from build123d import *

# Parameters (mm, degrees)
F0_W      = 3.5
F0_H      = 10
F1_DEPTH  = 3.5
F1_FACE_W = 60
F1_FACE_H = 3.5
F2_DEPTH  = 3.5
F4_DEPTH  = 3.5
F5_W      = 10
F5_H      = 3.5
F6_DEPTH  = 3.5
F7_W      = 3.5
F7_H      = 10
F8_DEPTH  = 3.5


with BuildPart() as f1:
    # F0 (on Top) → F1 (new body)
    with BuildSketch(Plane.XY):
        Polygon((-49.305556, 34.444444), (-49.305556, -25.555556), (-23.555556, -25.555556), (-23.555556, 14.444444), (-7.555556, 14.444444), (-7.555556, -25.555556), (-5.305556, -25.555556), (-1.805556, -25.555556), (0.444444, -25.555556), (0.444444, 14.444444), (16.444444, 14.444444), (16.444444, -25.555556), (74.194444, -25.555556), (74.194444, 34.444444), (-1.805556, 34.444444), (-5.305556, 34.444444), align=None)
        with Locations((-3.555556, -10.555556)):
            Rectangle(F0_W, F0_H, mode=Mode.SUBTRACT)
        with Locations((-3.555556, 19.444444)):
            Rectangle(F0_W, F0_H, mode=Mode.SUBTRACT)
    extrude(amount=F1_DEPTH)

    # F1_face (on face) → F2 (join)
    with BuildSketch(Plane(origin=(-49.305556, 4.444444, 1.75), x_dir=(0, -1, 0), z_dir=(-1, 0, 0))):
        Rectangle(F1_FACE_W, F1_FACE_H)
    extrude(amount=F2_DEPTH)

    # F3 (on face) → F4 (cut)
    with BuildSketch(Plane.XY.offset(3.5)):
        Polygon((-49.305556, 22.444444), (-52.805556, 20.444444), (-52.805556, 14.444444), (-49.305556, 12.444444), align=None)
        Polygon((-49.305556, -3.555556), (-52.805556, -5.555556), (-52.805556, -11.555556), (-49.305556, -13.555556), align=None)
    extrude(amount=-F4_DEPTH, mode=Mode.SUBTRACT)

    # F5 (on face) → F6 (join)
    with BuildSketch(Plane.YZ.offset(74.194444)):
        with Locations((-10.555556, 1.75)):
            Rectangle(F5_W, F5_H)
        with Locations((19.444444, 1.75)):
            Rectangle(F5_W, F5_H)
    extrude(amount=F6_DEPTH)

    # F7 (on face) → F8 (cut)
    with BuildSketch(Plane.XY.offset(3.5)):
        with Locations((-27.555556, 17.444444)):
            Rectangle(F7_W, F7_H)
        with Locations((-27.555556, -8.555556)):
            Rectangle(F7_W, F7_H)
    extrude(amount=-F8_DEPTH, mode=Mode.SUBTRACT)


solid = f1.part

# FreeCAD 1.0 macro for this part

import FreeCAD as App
import Part
import Sketcher
from FreeCAD import Vector

doc = App.newDocument("Part")
body = doc.addObject("PartDesign::Body", "Body")

# Sketch on XY plane
sketch1 = doc.addObject("Sketcher::SketchObject", "Sketch")
body.addObject(sketch1)
sketch1.AttachmentSupport = (doc.XY_Plane, [""])
sketch1.MapMode = "FlatFace"
sketch1.addGeometry([
    Part.LineSegment(Vector(-49.305556, 34.444444, 0), Vector(-49.305556, -25.555556, 0)),  # 0
    Part.LineSegment(Vector(-49.305556, -25.555556, 0), Vector(-23.555556, -25.555556, 0)),  # 1
    Part.LineSegment(Vector(-23.555556, -25.555556, 0), Vector(-23.555556, 14.444444, 0)),  # 2
    Part.LineSegment(Vector(-23.555556, 14.444444, 0), Vector(-7.555556, 14.444444, 0)),  # 3
    Part.LineSegment(Vector(-7.555556, 14.444444, 0), Vector(-7.555556, -25.555556, 0)),  # 4
    Part.LineSegment(Vector(-7.555556, -25.555556, 0), Vector(0.444444, -25.555556, 0)),  # 5
    Part.LineSegment(Vector(0.444444, -25.555556, 0), Vector(0.444444, 14.444444, 0)),  # 6
    Part.LineSegment(Vector(0.444444, 14.444444, 0), Vector(16.444444, 14.444444, 0)),  # 7
    Part.LineSegment(Vector(16.444444, 14.444444, 0), Vector(16.444444, -25.555556, 0)),  # 8
    Part.LineSegment(Vector(16.444444, -25.555556, 0), Vector(74.194444, -25.555556, 0)),  # 9
    Part.LineSegment(Vector(74.194444, -25.555556, 0), Vector(74.194444, 34.444444, 0)),  # 10
    Part.LineSegment(Vector(74.194444, 34.444444, 0), Vector(-49.305556, 34.444444, 0)),  # 11
    Part.LineSegment(Vector(-1.805556, -15.555556, 0), Vector(-5.305556, -15.555556, 0)),  # 12
    Part.LineSegment(Vector(-5.305556, -15.555556, 0), Vector(-5.305556, -5.555556, 0)),  # 13
    Part.LineSegment(Vector(-5.305556, -5.555556, 0), Vector(-1.805556, -5.555556, 0)),  # 14
    Part.LineSegment(Vector(-1.805556, -5.555556, 0), Vector(-1.805556, -15.555556, 0)),  # 15
    Part.LineSegment(Vector(-1.805556, 14.444444, 0), Vector(-5.305556, 14.444444, 0)),  # 16
    Part.LineSegment(Vector(-5.305556, 14.444444, 0), Vector(-5.305556, 24.444444, 0)),  # 17
    Part.LineSegment(Vector(-5.305556, 24.444444, 0), Vector(-1.805556, 24.444444, 0)),  # 18
    Part.LineSegment(Vector(-1.805556, 24.444444, 0), Vector(-1.805556, 14.444444, 0)),  # 19
], False)
sketch1.addConstraint([
    Sketcher.Constraint("Coincident", 0, 2, 1, 1),
    Sketcher.Constraint("Coincident", 1, 2, 2, 1),
    Sketcher.Constraint("Coincident", 2, 2, 3, 1),
    Sketcher.Constraint("Coincident", 3, 2, 4, 1),
    Sketcher.Constraint("Coincident", 4, 2, 5, 1),
    Sketcher.Constraint("Coincident", 5, 2, 6, 1),
    Sketcher.Constraint("Coincident", 6, 2, 7, 1),
    Sketcher.Constraint("Coincident", 7, 2, 8, 1),
    Sketcher.Constraint("Coincident", 8, 2, 9, 1),
    Sketcher.Constraint("Coincident", 9, 2, 10, 1),
    Sketcher.Constraint("Coincident", 10, 2, 11, 1),
    Sketcher.Constraint("Coincident", 11, 2, 0, 1),
    Sketcher.Constraint("Coincident", 12, 2, 13, 1),
    Sketcher.Constraint("Coincident", 13, 2, 14, 1),
    Sketcher.Constraint("Coincident", 14, 2, 15, 1),
    Sketcher.Constraint("Coincident", 15, 2, 12, 1),
    Sketcher.Constraint("Coincident", 16, 2, 17, 1),
    Sketcher.Constraint("Coincident", 17, 2, 18, 1),
    Sketcher.Constraint("Coincident", 18, 2, 19, 1),
    Sketcher.Constraint("Coincident", 19, 2, 16, 1),
    Sketcher.Constraint("Vertical", 0),
    Sketcher.Constraint("Horizontal", 1),
    Sketcher.Constraint("Vertical", 2),
    Sketcher.Constraint("Horizontal", 3),
    Sketcher.Constraint("Vertical", 4),
    Sketcher.Constraint("Horizontal", 5),
    Sketcher.Constraint("Vertical", 6),
    Sketcher.Constraint("Horizontal", 7),
    Sketcher.Constraint("Vertical", 8),
    Sketcher.Constraint("Horizontal", 9),
    Sketcher.Constraint("Vertical", 10),
    Sketcher.Constraint("Horizontal", 11),
    Sketcher.Constraint("Horizontal", 12),
    Sketcher.Constraint("Vertical", 13),
    Sketcher.Constraint("Horizontal", 14),
    Sketcher.Constraint("Vertical", 15),
    Sketcher.Constraint("Horizontal", 16),
    Sketcher.Constraint("Vertical", 17),
    Sketcher.Constraint("Horizontal", 18),
    Sketcher.Constraint("Vertical", 19),
    Sketcher.Constraint("Horizontal", 1, 2, 4, 2),
    Sketcher.Constraint("Horizontal", 3, 2, 6, 2),
    Sketcher.Constraint("Horizontal", 5, 2, 8, 2),
    Sketcher.Constraint("Horizontal", 7, 2, 16, 2),
    Sketcher.Constraint("Vertical", 13, 2, 16, 2),
    Sketcher.Constraint("Vertical", 15, 2, 18, 2),
    Sketcher.Constraint("Equal", 3, 7),
    Sketcher.Constraint("Equal", 15, 17),
    Sketcher.Constraint("DistanceX", 3, 1, 3, 2, 16.0),
    Sketcher.Constraint("DistanceX", 5, 1, 5, 2, 8.0),
    Sketcher.Constraint("DistanceY", 0, 2, 0, 1, 60.0),
    Sketcher.Constraint("DistanceY", 2, 1, 2, 2, 40.0),
    Sketcher.Constraint("DistanceY", 13, 1, 13, 2, 10.0),
    Sketcher.Constraint("DistanceX", 11, 2, 11, 1, 123.5),
    Sketcher.Constraint("DistanceX", 12, 2, 12, 1, 3.5),
    Sketcher.Constraint("DistanceY", 4, 2, 12, 2, 10.0),
    Sketcher.Constraint("DistanceX", 1, 1, 1, 2, 25.75),
    Sketcher.Constraint("DistanceX", 4, 2, 12, 2, 2.25),
    Sketcher.Constraint("DistanceX", 0, 2, -1, 1, 49.305556),
    Sketcher.Constraint("DistanceY", 0, 2, -1, 1, 25.555556),
])
pad1 = doc.addObject("PartDesign::Pad", "Pad")
body.addObject(pad1)
pad1.Profile = sketch1
pad1.Length = 3.5

# Sketch on YZ plane
sketch2 = doc.addObject("Sketcher::SketchObject", "Sketch001")
body.addObject(sketch2)
sketch2.AttachmentSupport = (doc.YZ_Plane, [""])
sketch2.MapMode = "FlatFace"
sketch2.AttachmentOffset = App.Placement(Vector(0, 0, -49.305556), App.Rotation())
sketch2.addGeometry([
    Part.LineSegment(Vector(34.444444, 3.5, 0), Vector(34.444444, 0, 0)),
    Part.LineSegment(Vector(34.444444, 0, 0), Vector(-25.555556, 0, 0)),
    Part.LineSegment(Vector(-25.555556, 0, 0), Vector(-25.555556, 3.5, 0)),
    Part.LineSegment(Vector(-25.555556, 3.5, 0), Vector(34.444444, 3.5, 0)),
], False)
sketch2.addConstraint([
    Sketcher.Constraint("Coincident", 0, 2, 1, 1),
    Sketcher.Constraint("Coincident", 1, 2, 2, 1),
    Sketcher.Constraint("Coincident", 2, 2, 3, 1),
    Sketcher.Constraint("Coincident", 3, 2, 0, 1),
    Sketcher.Constraint("Vertical", 0),
    Sketcher.Constraint("Horizontal", 1),
    Sketcher.Constraint("Vertical", 2),
    Sketcher.Constraint("Horizontal", 3),
    Sketcher.Constraint("PointOnObject", 0, 2, -1),
    Sketcher.Constraint("DistanceX", 1, 2, 1, 1, 60.0),
    Sketcher.Constraint("DistanceY", 0, 2, 0, 1, 3.5),
    Sketcher.Constraint("DistanceX", -1, 1, 0, 2, 34.444444),
])
pad2 = doc.addObject("PartDesign::Pad", "Pad001")
body.addObject(pad2)
pad2.Profile = sketch2
pad2.Length = 3.5
pad2.Reversed = True

# Sketch on XY plane
sketch3 = doc.addObject("Sketcher::SketchObject", "Sketch002")
body.addObject(sketch3)
sketch3.AttachmentSupport = (doc.XY_Plane, [""])
sketch3.MapMode = "FlatFace"
sketch3.AttachmentOffset = App.Placement(Vector(0, 0, 3.5), App.Rotation())
sketch3.addGeometry([
    Part.LineSegment(Vector(-49.305556, 22.444444, 0), Vector(-52.805556, 20.444444, 0)),  # 0
    Part.LineSegment(Vector(-52.805556, 20.444444, 0), Vector(-52.805556, 14.444444, 0)),  # 1
    Part.LineSegment(Vector(-52.805556, 14.444444, 0), Vector(-49.305556, 12.444444, 0)),  # 2
    Part.LineSegment(Vector(-49.305556, 12.444444, 0), Vector(-49.305556, 22.444444, 0)),  # 3
    Part.LineSegment(Vector(-49.305556, -3.555556, 0), Vector(-52.805556, -5.555556, 0)),  # 4
    Part.LineSegment(Vector(-52.805556, -5.555556, 0), Vector(-52.805556, -11.555556, 0)),  # 5
    Part.LineSegment(Vector(-52.805556, -11.555556, 0), Vector(-49.305556, -13.555556, 0)),  # 6
    Part.LineSegment(Vector(-49.305556, -13.555556, 0), Vector(-49.305556, -3.555556, 0)),  # 7
], False)
sketch3.addConstraint([
    Sketcher.Constraint("Coincident", 0, 2, 1, 1),
    Sketcher.Constraint("Coincident", 1, 2, 2, 1),
    Sketcher.Constraint("Coincident", 2, 2, 3, 1),
    Sketcher.Constraint("Coincident", 3, 2, 0, 1),
    Sketcher.Constraint("Coincident", 4, 2, 5, 1),
    Sketcher.Constraint("Coincident", 5, 2, 6, 1),
    Sketcher.Constraint("Coincident", 6, 2, 7, 1),
    Sketcher.Constraint("Coincident", 7, 2, 4, 1),
    Sketcher.Constraint("Vertical", 1),
    Sketcher.Constraint("Vertical", 3),
    Sketcher.Constraint("Vertical", 5),
    Sketcher.Constraint("Vertical", 7),
    Sketcher.Constraint("Parallel", 0, 4),
    Sketcher.Constraint("Parallel", 2, 6),
    Sketcher.Constraint("Vertical", 1, 2, 4, 2),
    Sketcher.Constraint("Vertical", 3, 2, 6, 2),
    Sketcher.Constraint("Equal", 1, 5),
    Sketcher.Constraint("Equal", 0, 2),
    Sketcher.Constraint("DistanceY", 1, 2, 1, 1, 6.0),
    Sketcher.Constraint("DistanceY", 3, 1, 3, 2, 10.0),
    Sketcher.Constraint("DistanceY", 4, 2, 2, 2, 18.0),
    Sketcher.Constraint("DistanceX", 1, 2, 2, 2, 3.5),
    Sketcher.Constraint("DistanceX", 0, 2, -1, 1, 52.805556),
    Sketcher.Constraint("DistanceY", -1, 1, 0, 2, 20.444444),
])
pocket1 = doc.addObject("PartDesign::Pocket", "Pocket")
body.addObject(pocket1)
pocket1.Profile = sketch3
pocket1.Length = 3.5

# Sketch on YZ plane
sketch4 = doc.addObject("Sketcher::SketchObject", "Sketch003")
body.addObject(sketch4)
sketch4.AttachmentSupport = (doc.YZ_Plane, [""])
sketch4.MapMode = "FlatFace"
sketch4.AttachmentOffset = App.Placement(Vector(0, 0, 74.194444), App.Rotation())
sketch4.addGeometry([
    Part.LineSegment(Vector(-15.555556, 3.5, 0), Vector(-15.555556, 0, 0)),  # 0
    Part.LineSegment(Vector(-15.555556, 0, 0), Vector(-5.555556, 0, 0)),  # 1
    Part.LineSegment(Vector(-5.555556, 0, 0), Vector(-5.555556, 3.5, 0)),  # 2
    Part.LineSegment(Vector(-5.555556, 3.5, 0), Vector(-15.555556, 3.5, 0)),  # 3
    Part.LineSegment(Vector(14.444444, 3.5, 0), Vector(14.444444, 0, 0)),  # 4
    Part.LineSegment(Vector(14.444444, 0, 0), Vector(24.444444, 0, 0)),  # 5
    Part.LineSegment(Vector(24.444444, 0, 0), Vector(24.444444, 3.5, 0)),  # 6
    Part.LineSegment(Vector(24.444444, 3.5, 0), Vector(14.444444, 3.5, 0)),  # 7
], False)
sketch4.addConstraint([
    Sketcher.Constraint("Coincident", 0, 2, 1, 1),
    Sketcher.Constraint("Coincident", 1, 2, 2, 1),
    Sketcher.Constraint("Coincident", 2, 2, 3, 1),
    Sketcher.Constraint("Coincident", 3, 2, 0, 1),
    Sketcher.Constraint("Coincident", 4, 2, 5, 1),
    Sketcher.Constraint("Coincident", 5, 2, 6, 1),
    Sketcher.Constraint("Coincident", 6, 2, 7, 1),
    Sketcher.Constraint("Coincident", 7, 2, 4, 1),
    Sketcher.Constraint("Vertical", 0),
    Sketcher.Constraint("Horizontal", 1),
    Sketcher.Constraint("Vertical", 2),
    Sketcher.Constraint("Horizontal", 3),
    Sketcher.Constraint("Vertical", 4),
    Sketcher.Constraint("Horizontal", 5),
    Sketcher.Constraint("Vertical", 6),
    Sketcher.Constraint("Horizontal", 7),
    Sketcher.Constraint("PointOnObject", 0, 2, -1),
    Sketcher.Constraint("PointOnObject", 4, 2, -1),
    Sketcher.Constraint("Horizontal", 3, 2, 6, 2),
    Sketcher.Constraint("Equal", 3, 5),
    Sketcher.Constraint("DistanceX", 1, 1, 1, 2, 10.0),
    Sketcher.Constraint("DistanceY", 0, 2, 0, 1, 3.5),
    Sketcher.Constraint("DistanceX", 1, 2, 4, 2, 20.0),
    Sketcher.Constraint("DistanceX", 0, 2, -1, 1, 15.555556),
])
pad3 = doc.addObject("PartDesign::Pad", "Pad002")
body.addObject(pad3)
pad3.Profile = sketch4
pad3.Length = 3.5

# Sketch on XY plane
sketch5 = doc.addObject("Sketcher::SketchObject", "Sketch004")
body.addObject(sketch5)
sketch5.AttachmentSupport = (doc.XY_Plane, [""])
sketch5.MapMode = "FlatFace"
sketch5.AttachmentOffset = App.Placement(Vector(0, 0, 3.5), App.Rotation())
sketch5.addGeometry([
    Part.LineSegment(Vector(-29.305556, 22.444444, 0), Vector(-29.305556, 12.444444, 0)),  # 0
    Part.LineSegment(Vector(-29.305556, 12.444444, 0), Vector(-25.805556, 12.444444, 0)),  # 1
    Part.LineSegment(Vector(-25.805556, 12.444444, 0), Vector(-25.805556, 22.444444, 0)),  # 2
    Part.LineSegment(Vector(-25.805556, 22.444444, 0), Vector(-29.305556, 22.444444, 0)),  # 3
    Part.LineSegment(Vector(-29.305556, -3.555556, 0), Vector(-29.305556, -13.555556, 0)),  # 4
    Part.LineSegment(Vector(-29.305556, -13.555556, 0), Vector(-25.805556, -13.555556, 0)),  # 5
    Part.LineSegment(Vector(-25.805556, -13.555556, 0), Vector(-25.805556, -3.555556, 0)),  # 6
    Part.LineSegment(Vector(-25.805556, -3.555556, 0), Vector(-29.305556, -3.555556, 0)),  # 7
], False)
sketch5.addConstraint([
    Sketcher.Constraint("Coincident", 0, 2, 1, 1),
    Sketcher.Constraint("Coincident", 1, 2, 2, 1),
    Sketcher.Constraint("Coincident", 2, 2, 3, 1),
    Sketcher.Constraint("Coincident", 3, 2, 0, 1),
    Sketcher.Constraint("Coincident", 4, 2, 5, 1),
    Sketcher.Constraint("Coincident", 5, 2, 6, 1),
    Sketcher.Constraint("Coincident", 6, 2, 7, 1),
    Sketcher.Constraint("Coincident", 7, 2, 4, 1),
    Sketcher.Constraint("Vertical", 0),
    Sketcher.Constraint("Horizontal", 1),
    Sketcher.Constraint("Vertical", 2),
    Sketcher.Constraint("Horizontal", 3),
    Sketcher.Constraint("Vertical", 4),
    Sketcher.Constraint("Horizontal", 5),
    Sketcher.Constraint("Vertical", 6),
    Sketcher.Constraint("Horizontal", 7),
    Sketcher.Constraint("Vertical", 3, 2, 4, 2),
    Sketcher.Constraint("Vertical", 2, 2, 5, 2),
    Sketcher.Constraint("Equal", 2, 4),
    Sketcher.Constraint("DistanceY", 0, 2, 0, 1, 10.0),
    Sketcher.Constraint("DistanceX", 1, 1, 1, 2, 3.5),
    Sketcher.Constraint("DistanceY", 4, 2, 0, 2, 26.0),
    Sketcher.Constraint("DistanceX", 0, 2, -1, 1, 29.305556),
    Sketcher.Constraint("DistanceY", -1, 1, 0, 2, 12.444444),
])
pocket2 = doc.addObject("PartDesign::Pocket", "Pocket001")
body.addObject(pocket2)
pocket2.Profile = sketch5
pocket2.Length = 3.5

doc.recompute()
